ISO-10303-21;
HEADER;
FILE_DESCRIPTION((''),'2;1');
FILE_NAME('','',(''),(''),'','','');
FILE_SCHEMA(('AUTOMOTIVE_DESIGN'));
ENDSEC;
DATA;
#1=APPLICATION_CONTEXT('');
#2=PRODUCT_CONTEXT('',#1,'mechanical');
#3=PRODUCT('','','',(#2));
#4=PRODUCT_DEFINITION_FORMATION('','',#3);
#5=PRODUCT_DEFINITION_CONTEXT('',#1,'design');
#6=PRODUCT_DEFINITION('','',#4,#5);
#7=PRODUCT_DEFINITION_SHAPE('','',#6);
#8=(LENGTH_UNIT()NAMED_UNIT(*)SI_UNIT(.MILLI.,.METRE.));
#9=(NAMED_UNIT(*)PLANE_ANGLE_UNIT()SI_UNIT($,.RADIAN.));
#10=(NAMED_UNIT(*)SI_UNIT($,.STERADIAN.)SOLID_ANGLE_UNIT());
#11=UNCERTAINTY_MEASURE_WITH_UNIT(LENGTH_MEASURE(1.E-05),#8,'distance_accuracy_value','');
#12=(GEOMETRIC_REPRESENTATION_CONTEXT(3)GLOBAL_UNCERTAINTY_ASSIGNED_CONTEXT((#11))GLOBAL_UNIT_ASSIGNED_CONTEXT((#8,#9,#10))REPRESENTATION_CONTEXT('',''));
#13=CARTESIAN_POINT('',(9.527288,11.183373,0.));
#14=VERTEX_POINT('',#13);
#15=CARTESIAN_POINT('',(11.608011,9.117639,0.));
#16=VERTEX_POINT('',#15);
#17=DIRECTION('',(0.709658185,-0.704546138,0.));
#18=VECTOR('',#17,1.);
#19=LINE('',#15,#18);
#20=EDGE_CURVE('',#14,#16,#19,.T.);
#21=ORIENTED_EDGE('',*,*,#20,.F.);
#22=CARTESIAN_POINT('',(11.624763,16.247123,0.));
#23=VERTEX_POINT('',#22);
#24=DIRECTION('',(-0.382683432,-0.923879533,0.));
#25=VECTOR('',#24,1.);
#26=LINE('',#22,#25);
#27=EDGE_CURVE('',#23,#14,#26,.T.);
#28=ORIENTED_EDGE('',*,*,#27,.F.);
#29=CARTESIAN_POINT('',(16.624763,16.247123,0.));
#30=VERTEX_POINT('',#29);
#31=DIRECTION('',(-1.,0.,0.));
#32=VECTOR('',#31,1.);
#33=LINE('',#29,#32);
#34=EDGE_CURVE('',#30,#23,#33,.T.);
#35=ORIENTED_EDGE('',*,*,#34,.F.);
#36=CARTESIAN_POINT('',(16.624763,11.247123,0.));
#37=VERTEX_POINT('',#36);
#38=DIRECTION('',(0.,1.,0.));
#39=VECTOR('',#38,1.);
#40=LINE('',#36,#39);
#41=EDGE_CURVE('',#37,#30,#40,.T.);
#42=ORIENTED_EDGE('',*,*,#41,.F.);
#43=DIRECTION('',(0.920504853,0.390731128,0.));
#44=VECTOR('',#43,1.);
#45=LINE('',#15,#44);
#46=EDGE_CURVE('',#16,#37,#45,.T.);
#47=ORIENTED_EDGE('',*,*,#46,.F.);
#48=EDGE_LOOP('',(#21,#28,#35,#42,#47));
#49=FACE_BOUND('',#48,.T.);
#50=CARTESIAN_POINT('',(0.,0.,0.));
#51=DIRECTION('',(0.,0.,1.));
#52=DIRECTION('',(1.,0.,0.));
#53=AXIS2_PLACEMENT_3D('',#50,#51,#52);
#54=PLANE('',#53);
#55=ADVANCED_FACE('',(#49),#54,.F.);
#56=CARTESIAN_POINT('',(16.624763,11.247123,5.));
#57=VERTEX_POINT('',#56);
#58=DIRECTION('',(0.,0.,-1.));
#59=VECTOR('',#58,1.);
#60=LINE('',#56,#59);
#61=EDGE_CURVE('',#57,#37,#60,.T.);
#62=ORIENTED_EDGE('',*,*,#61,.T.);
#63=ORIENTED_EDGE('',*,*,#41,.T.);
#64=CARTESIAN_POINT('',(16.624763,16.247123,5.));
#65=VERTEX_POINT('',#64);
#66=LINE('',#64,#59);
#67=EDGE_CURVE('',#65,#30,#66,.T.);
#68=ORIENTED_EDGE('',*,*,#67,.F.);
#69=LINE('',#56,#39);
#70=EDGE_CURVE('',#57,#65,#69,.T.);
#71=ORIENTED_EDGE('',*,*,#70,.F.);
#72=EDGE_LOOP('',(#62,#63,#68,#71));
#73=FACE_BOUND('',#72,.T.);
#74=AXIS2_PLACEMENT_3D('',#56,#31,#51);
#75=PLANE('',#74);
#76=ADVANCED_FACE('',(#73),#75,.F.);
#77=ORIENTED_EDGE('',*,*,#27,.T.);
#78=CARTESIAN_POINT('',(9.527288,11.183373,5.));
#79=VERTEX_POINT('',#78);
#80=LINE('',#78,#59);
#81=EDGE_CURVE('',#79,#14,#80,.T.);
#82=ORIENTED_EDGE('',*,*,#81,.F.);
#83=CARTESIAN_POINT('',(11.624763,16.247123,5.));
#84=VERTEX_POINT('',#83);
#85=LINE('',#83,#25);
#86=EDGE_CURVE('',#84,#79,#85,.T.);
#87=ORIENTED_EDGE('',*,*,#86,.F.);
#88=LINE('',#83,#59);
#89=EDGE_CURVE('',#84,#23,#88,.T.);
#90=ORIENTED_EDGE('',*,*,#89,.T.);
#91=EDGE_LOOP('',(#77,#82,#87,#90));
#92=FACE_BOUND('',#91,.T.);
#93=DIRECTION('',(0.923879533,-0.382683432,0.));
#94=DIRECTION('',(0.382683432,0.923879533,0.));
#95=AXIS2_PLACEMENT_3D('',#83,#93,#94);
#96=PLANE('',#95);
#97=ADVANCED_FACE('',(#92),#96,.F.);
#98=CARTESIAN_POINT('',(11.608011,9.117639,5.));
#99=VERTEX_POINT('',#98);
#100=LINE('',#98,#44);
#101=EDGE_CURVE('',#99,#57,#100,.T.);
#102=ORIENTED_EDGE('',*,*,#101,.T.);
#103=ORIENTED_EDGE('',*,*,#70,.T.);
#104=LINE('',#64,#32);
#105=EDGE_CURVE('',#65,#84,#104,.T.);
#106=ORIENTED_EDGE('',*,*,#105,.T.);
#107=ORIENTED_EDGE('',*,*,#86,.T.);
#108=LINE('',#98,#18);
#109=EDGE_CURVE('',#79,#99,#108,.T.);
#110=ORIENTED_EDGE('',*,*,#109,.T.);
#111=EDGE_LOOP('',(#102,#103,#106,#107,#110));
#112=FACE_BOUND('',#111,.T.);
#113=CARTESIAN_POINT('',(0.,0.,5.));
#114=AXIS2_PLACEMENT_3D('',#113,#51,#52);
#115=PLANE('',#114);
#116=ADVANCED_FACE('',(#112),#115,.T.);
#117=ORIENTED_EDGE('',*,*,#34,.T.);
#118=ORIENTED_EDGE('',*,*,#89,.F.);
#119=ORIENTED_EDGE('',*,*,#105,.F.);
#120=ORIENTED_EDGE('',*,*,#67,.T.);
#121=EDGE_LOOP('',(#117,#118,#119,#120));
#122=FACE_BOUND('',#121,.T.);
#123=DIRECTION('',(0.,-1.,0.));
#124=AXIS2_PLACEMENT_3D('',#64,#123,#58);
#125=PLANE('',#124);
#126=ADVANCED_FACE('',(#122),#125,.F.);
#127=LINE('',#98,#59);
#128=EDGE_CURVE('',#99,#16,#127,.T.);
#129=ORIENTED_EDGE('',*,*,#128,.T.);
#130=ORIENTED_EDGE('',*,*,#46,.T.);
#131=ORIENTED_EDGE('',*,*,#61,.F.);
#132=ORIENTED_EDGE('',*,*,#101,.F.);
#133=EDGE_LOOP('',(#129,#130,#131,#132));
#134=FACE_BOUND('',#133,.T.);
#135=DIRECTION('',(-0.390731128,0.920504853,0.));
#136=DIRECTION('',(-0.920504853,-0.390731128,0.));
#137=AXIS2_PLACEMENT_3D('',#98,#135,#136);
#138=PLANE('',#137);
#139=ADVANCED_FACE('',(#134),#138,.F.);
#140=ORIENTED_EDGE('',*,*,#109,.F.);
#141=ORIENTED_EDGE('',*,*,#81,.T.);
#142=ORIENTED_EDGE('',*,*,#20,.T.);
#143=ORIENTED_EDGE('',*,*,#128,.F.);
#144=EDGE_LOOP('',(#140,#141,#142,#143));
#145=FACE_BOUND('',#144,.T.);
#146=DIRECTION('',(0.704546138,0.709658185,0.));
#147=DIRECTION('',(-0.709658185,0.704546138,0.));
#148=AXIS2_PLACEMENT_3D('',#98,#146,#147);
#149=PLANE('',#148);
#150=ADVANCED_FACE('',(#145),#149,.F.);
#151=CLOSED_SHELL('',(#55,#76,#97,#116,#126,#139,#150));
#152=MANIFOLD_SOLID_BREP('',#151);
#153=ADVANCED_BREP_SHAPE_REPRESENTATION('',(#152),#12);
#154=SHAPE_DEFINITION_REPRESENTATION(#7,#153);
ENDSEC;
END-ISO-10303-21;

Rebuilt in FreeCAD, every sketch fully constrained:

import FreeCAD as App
import Part
import Sketcher
from FreeCAD import Vector
Q = App.Units.Quantity


def add_polygon(sketch, points):
    """Adds a closed chain of lines whose ends are joined by coincident constraints."""
    first, n = sketch.GeometryCount, len(points)
    for a, b in zip(points, points[1:] + points[:1]):
        sketch.addGeometry(Part.LineSegment(App.Vector(*a, 0), App.Vector(*b, 0)), False)
    for i in range(n):
        sketch.addConstraint(Sketcher.Constraint("Coincident", first + i, 2, first + (i + 1) % n, 1))

doc = App.newDocument("Part")
body = doc.addObject("PartDesign::Body", "Body")

# Sketch on XY plane
sketch1 = doc.addObject("Sketcher::SketchObject", "Sketch")
body.addObject(sketch1)
sketch1.AttachmentSupport = (doc.XY_Plane, [""])
sketch1.MapMode = "FlatFace"
add_polygon(sketch1, [(16.6, 11.2), (16.6, 16.2), (11.6, 16.2), (9.5, 11.2), (11.6, 9.1)])  # lines 0-4
sketch1.addConstraint([
    Sketcher.Constraint("Vertical", 0),
    Sketcher.Constraint("Horizontal", 1),
    Sketcher.Constraint("Equal", 1, 0),
    Sketcher.Constraint("DistanceX", 1, 2, 1, 1, Q("5 mm")),
    Sketcher.Constraint("Angle", 4, Q("23 deg")),
    Sketcher.Constraint("Angle", 2, Q("-112.5 deg")),
    Sketcher.Constraint("Distance", 4, Q("5.45 mm")),
    Sketcher.Constraint("DistanceX", -1, 1, 2, 2, Q("9.527288 mm")),
    Sketcher.Constraint("DistanceX", -1, 1, 3, 2, Q("11.608011 mm")),
    Sketcher.Constraint("DistanceY", -1, 1, 3, 2, Q("9.117639 mm")),
])
pad1 = doc.addObject("PartDesign::Pad", "Pad")
body.addObject(pad1)
pad1.Profile = sketch1
pad1.Length = 5

doc.recompute()
